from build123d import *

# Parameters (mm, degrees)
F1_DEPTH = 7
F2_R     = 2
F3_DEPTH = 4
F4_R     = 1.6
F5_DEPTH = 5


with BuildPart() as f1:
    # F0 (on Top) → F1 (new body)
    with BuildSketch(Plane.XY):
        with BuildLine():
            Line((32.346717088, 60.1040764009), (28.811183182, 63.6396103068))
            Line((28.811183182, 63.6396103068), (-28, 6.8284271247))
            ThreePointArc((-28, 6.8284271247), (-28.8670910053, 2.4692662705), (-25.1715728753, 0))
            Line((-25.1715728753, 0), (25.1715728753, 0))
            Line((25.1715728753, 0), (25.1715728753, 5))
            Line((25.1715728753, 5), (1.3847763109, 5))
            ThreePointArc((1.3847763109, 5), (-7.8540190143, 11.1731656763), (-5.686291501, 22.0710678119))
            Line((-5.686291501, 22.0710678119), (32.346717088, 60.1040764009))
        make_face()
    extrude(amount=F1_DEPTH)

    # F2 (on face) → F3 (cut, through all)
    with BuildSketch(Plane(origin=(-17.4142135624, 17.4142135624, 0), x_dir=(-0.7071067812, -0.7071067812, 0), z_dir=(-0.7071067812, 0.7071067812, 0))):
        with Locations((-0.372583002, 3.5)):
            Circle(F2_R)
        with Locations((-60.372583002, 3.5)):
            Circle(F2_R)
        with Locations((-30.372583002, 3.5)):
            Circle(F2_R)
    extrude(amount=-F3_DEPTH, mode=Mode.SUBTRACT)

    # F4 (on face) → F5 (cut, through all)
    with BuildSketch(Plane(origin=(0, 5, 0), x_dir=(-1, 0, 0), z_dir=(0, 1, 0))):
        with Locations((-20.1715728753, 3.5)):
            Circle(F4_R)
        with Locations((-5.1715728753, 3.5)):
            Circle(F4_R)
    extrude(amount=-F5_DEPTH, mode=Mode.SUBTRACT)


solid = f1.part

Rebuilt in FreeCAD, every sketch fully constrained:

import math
import FreeCAD as App
import Part
import Sketcher
from FreeCAD import Vector
Q = App.Units.Quantity

doc = App.newDocument("Part")
body = doc.addObject("PartDesign::Body", "Body")

sketch1 = body.newObject("Sketcher::SketchObject", "Sketch")
sketch1.AttachmentSupport = (doc.getObject("XY_Plane"), [""])
sketch1.MapMode = "FlatFace"
sketch1.addGeometry([
    Part.LineSegment(Vector(32.3, 60.1, 0), Vector(28.8, 63.6, 0)),
    Part.LineSegment(Vector(28.8, 63.6, 0), Vector(-28, 6.8, 0)),
    Part.ArcOfCircle(Part.Circle(Vector(-25.2, 4, 0), Vector(0, 0, 1), 4), math.radians(135), math.radians(270)),
    Part.LineSegment(Vector(-25.2, 0, 0), Vector(25.2, 0, 0)),
    Part.LineSegment(Vector(25.2, 0, 0), Vector(25.2, 5, 0)),
    Part.LineSegment(Vector(25.2, 5, 0), Vector(1.4, 5, 0)),
    Part.ArcOfCircle(Part.Circle(Vector(1.4, 15, 0), Vector(0, 0, 1), 10), math.radians(135), math.radians(270)),
    Part.LineSegment(Vector(-5.7, 22.1, 0), Vector(32.3, 60.1, 0)),
], False)
sketch1.addConstraint([
    Sketcher.Constraint("Coincident", 0, 2, 1, 1),
    Sketcher.Constraint("Tangent", 1, 2, 2, 1),
    Sketcher.Constraint("Tangent", 2, 2, 3, 1),
    Sketcher.Constraint("Coincident", 3, 2, 4, 1),
    Sketcher.Constraint("Coincident", 4, 2, 5, 1),
    Sketcher.Constraint("Tangent", 5, 2, 6, 2),
    Sketcher.Constraint("Tangent", 6, 1, 7, 1),
    Sketcher.Constraint("Coincident", 7, 2, 0, 1),
    Sketcher.Constraint("Horizontal", 3),
    Sketcher.Constraint("Vertical", 4),
    Sketcher.Constraint("Horizontal", 5),
    Sketcher.Constraint("Symmetric", 2, 2, 3, 2, -1, 1),
    Sketcher.Constraint("Perpendicular", 0, 1),
    Sketcher.Constraint("Parallel", 1, 7),
    Sketcher.Constraint("Radius", 2, 4.0),
    Sketcher.Constraint("Radius", 6, 10.0),
    Sketcher.Constraint("DistanceY", 4, 1, 4, 2, 5.0),
    Sketcher.Constraint("Angle", 0, Q("135 deg")),
    Sketcher.Constraint("Distance", 0, 5.0),
    Sketcher.Constraint("DistanceX", 1, 2, -1, 1, 28.0),
    Sketcher.Constraint("DistanceY", -1, 1, 0, 2, 63.63961),
])
pad1 = body.newObject("PartDesign::Pad", "Pad")
pad1.Profile = sketch1
pad1.Length = 7

sketch2 = body.newObject("Sketcher::SketchObject", "Sketch001")
sketch2.Placement = App.Placement(Vector(-17.414214, 17.414214, 0), App.Rotation(Vector(-0.707106781, -0.707106781, 0), Vector(0, 0, 0.999999999), Vector(-0.707106781, 0.707106781, 0), "ZXY"))
sketch2.addGeometry([
    Part.Circle(Vector(-0.4, 3.5, 0), Vector(0, 0, 1), 2),
    Part.Circle(Vector(-60.4, 3.5, 0), Vector(0, 0, 1), 2),
    Part.Circle(Vector(-30.4, 3.5, 0), Vector(0, 0, 1), 2),
], False)
sketch2.addConstraint([
    Sketcher.Constraint("Equal", 0, 1),
    Sketcher.Constraint("Equal", 1, 2),
    Sketcher.Constraint("Horizontal", 0, 3, 1, 3),
    Sketcher.Constraint("Horizontal", 1, 3, 2, 3),
    Sketcher.Constraint("Diameter", 0, 4.0),
    Sketcher.Constraint("DistanceX", 1, 3, 0, 3, 60.0),
    Sketcher.Constraint("DistanceX", 2, 3, 0, 3, 30.0),
    Sketcher.Constraint("DistanceY", -1, 1, 0, 3, 3.5),
    Sketcher.Constraint("DistanceX", 0, 3, -1, 1, 0.372583),
])
pocket1 = body.newObject("PartDesign::Pocket", "Pocket")
pocket1.Profile = sketch2
pocket1.Length = 4

sketch3 = body.newObject("Sketcher::SketchObject", "Sketch002")
sketch3.AttachmentSupport = (doc.getObject("XZ_Plane"), [""])
sketch3.MapMode = "FlatFace"
sketch3.AttachmentOffset = App.Placement(Vector(0, 0, -5), App.Rotation())
sketch3.addGeometry([
    Part.Circle(Vector(20.2, 3.5, 0), Vector(0, 0, 1), 1.6),
    Part.Circle(Vector(5.2, 3.5, 0), Vector(0, 0, 1), 1.6),
], False)
sketch3.addConstraint([
    Sketcher.Constraint("Equal", 0, 1),
    Sketcher.Constraint("Horizontal", 0, 3, 1, 3),
    Sketcher.Constraint("Diameter", 0, 3.2),
    Sketcher.Constraint("DistanceX", 1, 3, 0, 3, 15.0),
    Sketcher.Constraint("DistanceY", -1, 1, 0, 3, 3.5),
    Sketcher.Constraint("DistanceX", -1, 1, 0, 3, 20.171573),
])
pocket2 = body.newObject("PartDesign::Pocket", "Pocket001")
pocket2.Profile = sketch3
pocket2.Type = "ThroughAll"
pocket2.Reversed = True

doc.recompute()
